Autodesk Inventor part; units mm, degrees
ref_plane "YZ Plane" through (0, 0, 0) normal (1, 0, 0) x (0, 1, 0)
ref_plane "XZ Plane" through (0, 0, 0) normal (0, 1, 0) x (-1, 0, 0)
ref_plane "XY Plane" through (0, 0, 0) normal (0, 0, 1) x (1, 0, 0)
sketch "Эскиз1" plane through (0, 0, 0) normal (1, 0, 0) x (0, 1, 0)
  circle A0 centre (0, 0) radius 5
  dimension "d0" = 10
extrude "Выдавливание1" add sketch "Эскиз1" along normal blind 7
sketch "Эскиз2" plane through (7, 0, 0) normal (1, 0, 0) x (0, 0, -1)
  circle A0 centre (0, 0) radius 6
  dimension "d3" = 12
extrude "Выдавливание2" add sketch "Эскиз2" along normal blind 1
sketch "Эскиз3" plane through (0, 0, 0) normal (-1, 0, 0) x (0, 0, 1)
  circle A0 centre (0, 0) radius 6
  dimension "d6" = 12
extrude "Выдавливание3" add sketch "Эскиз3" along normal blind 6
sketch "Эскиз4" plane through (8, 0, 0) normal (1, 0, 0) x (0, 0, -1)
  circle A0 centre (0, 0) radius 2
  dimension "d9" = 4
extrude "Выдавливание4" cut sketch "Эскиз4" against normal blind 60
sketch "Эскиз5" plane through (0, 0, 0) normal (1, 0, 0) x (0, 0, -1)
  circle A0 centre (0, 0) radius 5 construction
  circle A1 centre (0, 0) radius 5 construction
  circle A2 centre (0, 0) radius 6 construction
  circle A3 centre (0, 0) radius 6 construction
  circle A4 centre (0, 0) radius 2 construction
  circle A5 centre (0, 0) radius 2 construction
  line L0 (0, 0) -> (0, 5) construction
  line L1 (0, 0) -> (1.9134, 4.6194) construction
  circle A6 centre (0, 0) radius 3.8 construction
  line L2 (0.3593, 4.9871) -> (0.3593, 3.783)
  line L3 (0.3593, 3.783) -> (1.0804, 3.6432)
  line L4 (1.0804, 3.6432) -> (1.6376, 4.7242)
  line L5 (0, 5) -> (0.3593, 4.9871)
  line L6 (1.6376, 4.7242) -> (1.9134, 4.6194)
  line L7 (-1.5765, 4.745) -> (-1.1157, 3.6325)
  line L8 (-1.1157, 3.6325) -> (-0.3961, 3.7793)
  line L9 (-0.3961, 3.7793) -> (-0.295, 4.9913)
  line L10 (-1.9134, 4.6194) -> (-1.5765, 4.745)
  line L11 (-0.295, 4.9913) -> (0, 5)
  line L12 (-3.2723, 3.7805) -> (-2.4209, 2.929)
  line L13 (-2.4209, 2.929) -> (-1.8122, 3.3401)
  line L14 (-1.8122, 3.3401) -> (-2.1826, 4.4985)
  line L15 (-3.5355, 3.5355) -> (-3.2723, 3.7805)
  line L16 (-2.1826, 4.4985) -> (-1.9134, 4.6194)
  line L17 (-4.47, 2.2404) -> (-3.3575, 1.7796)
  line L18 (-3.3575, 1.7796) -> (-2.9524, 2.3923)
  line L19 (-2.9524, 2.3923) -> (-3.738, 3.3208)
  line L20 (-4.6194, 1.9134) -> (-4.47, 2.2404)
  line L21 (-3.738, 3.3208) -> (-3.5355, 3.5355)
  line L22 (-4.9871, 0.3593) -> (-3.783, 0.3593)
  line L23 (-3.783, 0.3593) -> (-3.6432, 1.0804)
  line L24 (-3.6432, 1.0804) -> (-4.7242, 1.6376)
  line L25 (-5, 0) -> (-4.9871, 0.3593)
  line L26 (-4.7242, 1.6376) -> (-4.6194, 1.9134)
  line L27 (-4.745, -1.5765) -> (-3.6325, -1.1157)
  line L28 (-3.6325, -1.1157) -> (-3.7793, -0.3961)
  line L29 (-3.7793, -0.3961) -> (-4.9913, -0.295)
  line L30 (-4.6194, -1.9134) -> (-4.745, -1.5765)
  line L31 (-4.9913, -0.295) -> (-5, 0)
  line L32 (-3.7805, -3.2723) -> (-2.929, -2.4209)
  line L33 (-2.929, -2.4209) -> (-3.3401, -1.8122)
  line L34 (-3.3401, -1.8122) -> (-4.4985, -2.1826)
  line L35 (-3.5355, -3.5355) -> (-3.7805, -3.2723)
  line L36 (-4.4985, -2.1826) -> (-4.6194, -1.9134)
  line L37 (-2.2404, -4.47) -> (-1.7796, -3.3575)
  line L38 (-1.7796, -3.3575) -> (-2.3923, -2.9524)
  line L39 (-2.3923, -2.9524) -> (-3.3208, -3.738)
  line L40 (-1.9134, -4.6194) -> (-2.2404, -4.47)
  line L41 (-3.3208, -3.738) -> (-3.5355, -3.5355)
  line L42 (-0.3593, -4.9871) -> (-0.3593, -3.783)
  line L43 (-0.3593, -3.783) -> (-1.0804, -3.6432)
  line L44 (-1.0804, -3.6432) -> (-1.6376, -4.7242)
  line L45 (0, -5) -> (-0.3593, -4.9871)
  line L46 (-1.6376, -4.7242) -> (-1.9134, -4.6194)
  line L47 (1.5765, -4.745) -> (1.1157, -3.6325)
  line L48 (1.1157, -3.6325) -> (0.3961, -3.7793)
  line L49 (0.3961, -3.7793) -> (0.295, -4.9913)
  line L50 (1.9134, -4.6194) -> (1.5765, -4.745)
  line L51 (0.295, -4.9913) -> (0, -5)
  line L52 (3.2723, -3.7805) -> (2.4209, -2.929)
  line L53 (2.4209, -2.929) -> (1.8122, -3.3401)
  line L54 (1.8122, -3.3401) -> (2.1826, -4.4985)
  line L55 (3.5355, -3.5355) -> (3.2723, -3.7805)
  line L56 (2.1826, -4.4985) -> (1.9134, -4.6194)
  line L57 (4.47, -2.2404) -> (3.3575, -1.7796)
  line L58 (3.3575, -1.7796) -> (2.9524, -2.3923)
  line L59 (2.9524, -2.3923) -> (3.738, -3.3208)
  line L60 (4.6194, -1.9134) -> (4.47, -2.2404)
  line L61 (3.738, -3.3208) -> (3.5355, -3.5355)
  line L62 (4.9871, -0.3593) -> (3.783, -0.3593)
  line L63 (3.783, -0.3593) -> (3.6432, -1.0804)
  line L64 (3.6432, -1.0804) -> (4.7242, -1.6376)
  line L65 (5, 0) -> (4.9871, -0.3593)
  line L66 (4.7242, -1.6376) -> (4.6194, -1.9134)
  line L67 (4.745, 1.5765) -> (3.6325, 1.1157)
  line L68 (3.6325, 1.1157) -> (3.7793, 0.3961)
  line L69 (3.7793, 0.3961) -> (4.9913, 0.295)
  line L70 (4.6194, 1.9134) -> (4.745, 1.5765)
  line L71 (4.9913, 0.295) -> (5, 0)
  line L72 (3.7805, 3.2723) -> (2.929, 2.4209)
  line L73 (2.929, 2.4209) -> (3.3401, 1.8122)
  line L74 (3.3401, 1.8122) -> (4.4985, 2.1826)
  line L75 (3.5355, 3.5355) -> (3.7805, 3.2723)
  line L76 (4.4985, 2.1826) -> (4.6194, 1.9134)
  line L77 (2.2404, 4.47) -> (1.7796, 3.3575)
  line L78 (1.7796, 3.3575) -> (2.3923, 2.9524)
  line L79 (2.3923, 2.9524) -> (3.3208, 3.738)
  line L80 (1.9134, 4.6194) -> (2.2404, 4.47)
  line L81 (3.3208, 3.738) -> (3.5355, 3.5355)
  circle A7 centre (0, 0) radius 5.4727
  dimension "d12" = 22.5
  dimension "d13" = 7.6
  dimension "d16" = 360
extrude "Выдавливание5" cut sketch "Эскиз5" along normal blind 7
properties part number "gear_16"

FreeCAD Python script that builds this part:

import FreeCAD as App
import Part
import Sketcher
from FreeCAD import Vector
Q = App.Units.Quantity

doc = App.newDocument("Part")
body = doc.addObject("PartDesign::Body", "Body")

# Sketch on YZ plane
sketch1 = body.newObject("Sketcher::SketchObject", "Sketch")
sketch1.AttachmentSupport = (doc.getObject("YZ_Plane"), [""])
sketch1.MapMode = "FlatFace"
sketch1.addGeometry(Part.Circle(Vector(0, 0, 0), Vector(0, 0, 1), 5), False)
sketch1.addConstraint(Sketcher.Constraint("Coincident", 0, 3, -1, 1))
sketch1.addConstraint(Sketcher.Constraint("Diameter", 0, Q("10 mm")))
pad1 = body.newObject("PartDesign::Pad", "Pad")
pad1.Profile = sketch1
pad1.Length = 7

# Sketch on YZ plane
sketch2 = body.newObject("Sketcher::SketchObject", "Sketch001")
sketch2.AttachmentSupport = (doc.getObject("YZ_Plane"), [""])
sketch2.MapMode = "FlatFace"
sketch2.AttachmentOffset = App.Placement(Vector(0, 0, 7), App.Rotation())
sketch2.addGeometry(Part.Circle(Vector(0, 0, 0), Vector(0, 0, 1), 6), False)
sketch2.addConstraint(Sketcher.Constraint("Coincident", 0, 3, -1, 1))
sketch2.addConstraint(Sketcher.Constraint("Diameter", 0, Q("12 mm")))
pad2 = body.newObject("PartDesign::Pad", "Pad001")
pad2.Profile = sketch2
pad2.Length = 1

# Sketch on YZ plane
sketch3 = body.newObject("Sketcher::SketchObject", "Sketch002")
sketch3.AttachmentSupport = (doc.getObject("YZ_Plane"), [""])
sketch3.MapMode = "FlatFace"
sketch3.addGeometry(Part.Circle(Vector(0, 0, 0), Vector(0, 0, 1), 6), False)
sketch3.addConstraint(Sketcher.Constraint("Coincident", 0, 3, -1, 1))
sketch3.addConstraint(Sketcher.Constraint("Diameter", 0, Q("12 mm")))
pad3 = body.newObject("PartDesign::Pad", "Pad002")
pad3.Profile = sketch3
pad3.Length = 6
pad3.Reversed = True

# Sketch on YZ plane
sketch4 = body.newObject("Sketcher::SketchObject", "Sketch003")
sketch4.AttachmentSupport = (doc.getObject("YZ_Plane"), [""])
sketch4.MapMode = "FlatFace"
sketch4.AttachmentOffset = App.Placement(Vector(0, 0, 8), App.Rotation())
sketch4.addGeometry(Part.Circle(Vector(0, 0, 0), Vector(0, 0, 1), 2), False)
sketch4.addConstraint(Sketcher.Constraint("Coincident", 0, 3, -1, 1))
sketch4.addConstraint(Sketcher.Constraint("Diameter", 0, Q("4 mm")))
pocket1 = body.newObject("PartDesign::Pocket", "Pocket")
pocket1.Profile = sketch4
pocket1.Length = 60

# Sketch on YZ plane
sketch5 = body.newObject("Sketcher::SketchObject", "Sketch004")
sketch5.AttachmentSupport = (doc.getObject("YZ_Plane"), [""])
sketch5.MapMode = "FlatFace"
sketch5.addGeometry(Part.Circle(Vector(0, 0, 0), Vector(0, 0, 1), 5.4727), False)
sketch5.addGeometry(Part.LineSegment(Vector(5, 0, 0), Vector(4.9871, -0.3593, 0)), False)
sketch5.addGeometry(Part.LineSegment(Vector(4.9871, -0.3593, 0), Vector(3.783, -0.3593, 0)), False)
sketch5.addGeometry(Part.LineSegment(Vector(3.783, -0.3593, 0), Vector(3.6432, -1.0804, 0)), False)
sketch5.addGeometry(Part.LineSegment(Vector(3.6432, -1.0804, 0), Vector(4.7242, -1.6376, 0)), False)
sketch5.addGeometry(Part.LineSegment(Vector(4.7242, -1.6376, 0), Vector(4.6194, -1.9134, 0)), False)
sketch5.addGeometry(Part.LineSegment(Vector(4.6194, -1.9134, 0), Vector(4.47, -2.2404, 0)), False)
sketch5.addGeometry(Part.LineSegment(Vector(4.47, -2.2404, 0), Vector(3.3575, -1.7796, 0)), False)
sketch5.addGeometry(Part.LineSegment(Vector(3.3575, -1.7796, 0), Vector(2.9524, -2.3923, 0)), False)
sketch5.addGeometry(Part.LineSegment(Vector(2.9524, -2.3923, 0), Vector(3.738, -3.3208, 0)), False)
sketch5.addGeometry(Part.LineSegment(Vector(3.738, -3.3208, 0), Vector(3.5355, -3.5355, 0)), False)
sketch5.addGeometry(Part.LineSegment(Vector(3.5355, -3.5355, 0), Vector(3.2723, -3.7805, 0)), False)
sketch5.addGeometry(Part.LineSegment(Vector(3.2723, -3.7805, 0), Vector(2.4209, -2.929, 0)), False)
sketch5.addGeometry(Part.LineSegment(Vector(2.4209, -2.929, 0), Vector(1.8122, -3.3401, 0)), False)
sketch5.addGeometry(Part.LineSegment(Vector(1.8122, -3.3401, 0), Vector(2.1826, -4.4985, 0)), False)
sketch5.addGeometry(Part.LineSegment(Vector(2.1826, -4.4985, 0), Vector(1.9134, -4.6194, 0)), False)
sketch5.addGeometry(Part.LineSegment(Vector(1.9134, -4.6194, 0), Vector(1.5765, -4.745, 0)), False)
sketch5.addGeometry(Part.LineSegment(Vector(1.5765, -4.745, 0), Vector(1.1157, -3.6325, 0)), False)
sketch5.addGeometry(Part.LineSegment(Vector(1.1157, -3.6325, 0), Vector(0.3961, -3.7793, 0)), False)
sketch5.addGeometry(Part.LineSegment(Vector(0.3961, -3.7793, 0), Vector(0.295, -4.9913, 0)), False)
sketch5.addGeometry(Part.LineSegment(Vector(0.295, -4.9913, 0), Vector(0, -5, 0)), False)
sketch5.addGeometry(Part.LineSegment(Vector(0, -5, 0), Vector(-0.3593, -4.9871, 0)), False)
sketch5.addGeometry(Part.LineSegment(Vector(-0.3593, -4.9871, 0), Vector(-0.3593, -3.783, 0)), False)
sketch5.addGeometry(Part.LineSegment(Vector(-0.3593, -3.783, 0), Vector(-1.0804, -3.6432, 0)), False)
sketch5.addGeometry(Part.LineSegment(Vector(-1.0804, -3.6432, 0), Vector(-1.6376, -4.7242, 0)), False)
sketch5.addGeometry(Part.LineSegment(Vector(-1.6376, -4.7242, 0), Vector(-1.9134, -4.6194, 0)), False)
sketch5.addGeometry(Part.LineSegment(Vector(-1.9134, -4.6194, 0), Vector(-2.2404, -4.47, 0)), False)
sketch5.addGeometry(Part.LineSegment(Vector(-2.2404, -4.47, 0), Vector(-1.7796, -3.3575, 0)), False)
sketch5.addGeometry(Part.LineSegment(Vector(-1.7796, -3.3575, 0), Vector(-2.3923, -2.9524, 0)), False)
sketch5.addGeometry(Part.LineSegment(Vector(-2.3923, -2.9524, 0), Vector(-3.3208, -3.738, 0)), False)
sketch5.addGeometry(Part.LineSegment(Vector(-3.3208, -3.738, 0), Vector(-3.5355, -3.5355, 0)), False)
sketch5.addGeometry(Part.LineSegment(Vector(-3.5355, -3.5355, 0), Vector(-3.7805, -3.2723, 0)), False)
sketch5.addGeometry(Part.LineSegment(Vector(-3.7805, -3.2723, 0), Vector(-2.929, -2.4209, 0)), False)
sketch5.addGeometry(Part.LineSegment(Vector(-2.929, -2.4209, 0), Vector(-3.3401, -1.8122, 0)), False)
sketch5.addGeometry(Part.LineSegment(Vector(-3.3401, -1.8122, 0), Vector(-4.4985, -2.1826, 0)), False)
sketch5.addGeometry(Part.LineSegment(Vector(-4.4985, -2.1826, 0), Vector(-4.6194, -1.9134, 0)), False)
sketch5.addGeometry(Part.LineSegment(Vector(-4.6194, -1.9134, 0), Vector(-4.745, -1.5765, 0)), False)
sketch5.addGeometry(Part.LineSegment(Vector(-4.745, -1.5765, 0), Vector(-3.6325, -1.1157, 0)), False)
sketch5.addGeometry(Part.LineSegment(Vector(-3.6325, -1.1157, 0), Vector(-3.7793, -0.3961, 0)), False)
sketch5.addGeometry(Part.LineSegment(Vector(-3.7793, -0.3961, 0), Vector(-4.9913, -0.295, 0)), False)
sketch5.addGeometry(Part.LineSegment(Vector(-4.9913, -0.295, 0), Vector(-5, 0, 0)), False)
sketch5.addGeometry(Part.LineSegment(Vector(-5, 0, 0), Vector(-4.9871, 0.3593, 0)), False)
sketch5.addGeometry(Part.LineSegment(Vector(-4.9871, 0.3593, 0), Vector(-3.783, 0.3593, 0)), False)
sketch5.addGeometry(Part.LineSegment(Vector(-3.783, 0.3593, 0), Vector(-3.6432, 1.0804, 0)), False)
sketch5.addGeometry(Part.LineSegment(Vector(-3.6432, 1.0804, 0), Vector(-4.7242, 1.6376, 0)), False)
sketch5.addGeometry(Part.LineSegment(Vector(-4.7242, 1.6376, 0), Vector(-4.6194, 1.9134, 0)), False)
sketch5.addGeometry(Part.LineSegment(Vector(-4.6194, 1.9134, 0), Vector(-4.47, 2.2404, 0)), False)
sketch5.addGeometry(Part.LineSegment(Vector(-4.47, 2.2404, 0), Vector(-3.3575, 1.7796, 0)), False)
sketch5.addGeometry(Part.LineSegment(Vector(-3.3575, 1.7796, 0), Vector(-2.9524, 2.3923, 0)), False)
sketch5.addGeometry(Part.LineSegment(Vector(-2.9524, 2.3923, 0), Vector(-3.738, 3.3208, 0)), False)
sketch5.addGeometry(Part.LineSegment(Vector(-3.738, 3.3208, 0), Vector(-3.5355, 3.5355, 0)), False)
sketch5.addGeometry(Part.LineSegment(Vector(-3.5355, 3.5355, 0), Vector(-3.2723, 3.7805, 0)), False)
sketch5.addGeometry(Part.LineSegment(Vector(-3.2723, 3.7805, 0), Vector(-2.4209, 2.929, 0)), False)
sketch5.addGeometry(Part.LineSegment(Vector(-2.4209, 2.929, 0), Vector(-1.8122, 3.3401, 0)), False)
sketch5.addGeometry(Part.LineSegment(Vector(-1.8122, 3.3401, 0), Vector(-2.1826, 4.4985, 0)), False)
sketch5.addGeometry(Part.LineSegment(Vector(-2.1826, 4.4985, 0), Vector(-1.9134, 4.6194, 0)), False)
sketch5.addGeometry(Part.LineSegment(Vector(-1.9134, 4.6194, 0), Vector(-1.5765, 4.745, 0)), False)
sketch5.addGeometry(Part.LineSegment(Vector(-1.5765, 4.745, 0), Vector(-1.1157, 3.6325, 0)), False)
sketch5.addGeometry(Part.LineSegment(Vector(-1.1157, 3.6325, 0), Vector(-0.3961, 3.7793, 0)), False)
sketch5.addGeometry(Part.LineSegment(Vector(-0.3961, 3.7793, 0), Vector(-0.295, 4.9913, 0)), False)
sketch5.addGeometry(Part.LineSegment(Vector(-0.295, 4.9913, 0), Vector(0, 5, 0)), False)
sketch5.addGeometry(Part.LineSegment(Vector(0, 5, 0), Vector(0.3593, 4.9871, 0)), False)
sketch5.addGeometry(Part.LineSegment(Vector(0.3593, 4.9871, 0), Vector(0.3593, 3.783, 0)), False)
sketch5.addGeometry(Part.LineSegment(Vector(0.3593, 3.783, 0), Vector(1.0804, 3.6432, 0)), False)
sketch5.addGeometry(Part.LineSegment(Vector(1.0804, 3.6432, 0), Vector(1.6376, 4.7242, 0)), False)
sketch5.addGeometry(Part.LineSegment(Vector(1.6376, 4.7242, 0), Vector(1.9134, 4.6194, 0)), False)
sketch5.addGeometry(Part.LineSegment(Vector(1.9134, 4.6194, 0), Vector(2.2404, 4.47, 0)), False)
sketch5.addGeometry(Part.LineSegment(Vector(2.2404, 4.47, 0), Vector(1.7796, 3.3575, 0)), False)
sketch5.addGeometry(Part.LineSegment(Vector(1.7796, 3.3575, 0), Vector(2.3923, 2.9524, 0)), False)
sketch5.addGeometry(Part.LineSegment(Vector(2.3923, 2.9524, 0), Vector(3.3208, 3.738, 0)), False)
sketch5.addGeometry(Part.LineSegment(Vector(3.3208, 3.738, 0), Vector(3.5355, 3.5355, 0)), False)
sketch5.addGeometry(Part.LineSegment(Vector(3.5355, 3.5355, 0), Vector(3.7805, 3.2723, 0)), False)
sketch5.addGeometry(Part.LineSegment(Vector(3.7805, 3.2723, 0), Vector(2.929, 2.4209, 0)), False)
sketch5.addGeometry(Part.LineSegment(Vector(2.929, 2.4209, 0), Vector(3.3401, 1.8122, 0)), False)
sketch5.addGeometry(Part.LineSegment(Vector(3.3401, 1.8122, 0), Vector(4.4985, 2.1826, 0)), False)
sketch5.addGeometry(Part.LineSegment(Vector(4.4985, 2.1826, 0), Vector(4.6194, 1.9134, 0)), False)
sketch5.addGeometry(Part.LineSegment(Vector(4.6194, 1.9134, 0), Vector(4.745, 1.5765, 0)), False)
sketch5.addGeometry(Part.LineSegment(Vector(4.745, 1.5765, 0), Vector(3.6325, 1.1157, 0)), False)
sketch5.addGeometry(Part.LineSegment(Vector(3.6325, 1.1157, 0), Vector(3.7793, 0.3961, 0)), False)
sketch5.addGeometry(Part.LineSegment(Vector(3.7793, 0.3961, 0), Vector(4.9913, 0.295, 0)), False)
sketch5.addGeometry(Part.LineSegment(Vector(4.9913, 0.295, 0), Vector(5, 0, 0)), False)
sketch5.addConstraint(Sketcher.Constraint("Coincident", 1, 2, 2, 1))
sketch5.addConstraint(Sketcher.Constraint("Coincident", 2, 2, 3, 1))
sketch5.addConstraint(Sketcher.Constraint("Coincident", 3, 2, 4, 1))
sketch5.addConstraint(Sketcher.Constraint("Coincident", 4, 2, 5, 1))
sketch5.addConstraint(Sketcher.Constraint("Coincident", 5, 2, 6, 1))
sketch5.addConstraint(Sketcher.Constraint("Coincident", 6, 2, 7, 1))
sketch5.addConstraint(Sketcher.Constraint("Coincident", 7, 2, 8, 1))
sketch5.addConstraint(Sketcher.Constraint("Coincident", 8, 2, 9, 1))
sketch5.addConstraint(Sketcher.Constraint("Coincident", 9, 2, 10, 1))
sketch5.addConstraint(Sketcher.Constraint("Coincident", 10, 2, 11, 1))
sketch5.addConstraint(Sketcher.Constraint("Coincident", 11, 2, 12, 1))
sketch5.addConstraint(Sketcher.Constraint("Coincident", 12, 2, 13, 1))
sketch5.addConstraint(Sketcher.Constraint("Coincident", 13, 2, 14, 1))
sketch5.addConstraint(Sketcher.Constraint("Coincident", 14, 2, 15, 1))
sketch5.addConstraint(Sketcher.Constraint("Coincident", 15, 2, 16, 1))
sketch5.addConstraint(Sketcher.Constraint("Coincident", 16, 2, 17, 1))
sketch5.addConstraint(Sketcher.Constraint("Coincident", 17, 2, 18, 1))
sketch5.addConstraint(Sketcher.Constraint("Coincident", 18, 2, 19, 1))
sketch5.addConstraint(Sketcher.Constraint("Coincident", 19, 2, 20, 1))
sketch5.addConstraint(Sketcher.Constraint("Coincident", 20, 2, 21, 1))
sketch5.addConstraint(Sketcher.Constraint("Coincident", 21, 2, 22, 1))
sketch5.addConstraint(Sketcher.Constraint("Coincident", 22, 2, 23, 1))
sketch5.addConstraint(Sketcher.Constraint("Coincident", 23, 2, 24, 1))
sketch5.addConstraint(Sketcher.Constraint("Coincident", 24, 2, 25, 1))
sketch5.addConstraint(Sketcher.Constraint("Coincident", 25, 2, 26, 1))
sketch5.addConstraint(Sketcher.Constraint("Coincident", 26, 2, 27, 1))
sketch5.addConstraint(Sketcher.Constraint("Coincident", 27, 2, 28, 1))
sketch5.addConstraint(Sketcher.Constraint("Coincident", 28, 2, 29, 1))
sketch5.addConstraint(Sketcher.Constraint("Coincident", 29, 2, 30, 1))
sketch5.addConstraint(Sketcher.Constraint("Coincident", 30, 2, 31, 1))
sketch5.addConstraint(Sketcher.Constraint("Coincident", 31, 2, 32, 1))
sketch5.addConstraint(Sketcher.Constraint("Coincident", 32, 2, 33, 1))
sketch5.addConstraint(Sketcher.Constraint("Coincident", 33, 2, 34, 1))
sketch5.addConstraint(Sketcher.Constraint("Coincident", 34, 2, 35, 1))
sketch5.addConstraint(Sketcher.Constraint("Coincident", 35, 2, 36, 1))
sketch5.addConstraint(Sketcher.Constraint("Coincident", 36, 2, 37, 1))
sketch5.addConstraint(Sketcher.Constraint("Coincident", 37, 2, 38, 1))
sketch5.addConstraint(Sketcher.Constraint("Coincident", 38, 2, 39, 1))
sketch5.addConstraint(Sketcher.Constraint("Coincident", 39, 2, 40, 1))
sketch5.addConstraint(Sketcher.Constraint("Coincident", 40, 2, 41, 1))
sketch5.addConstraint(Sketcher.Constraint("Coincident", 41, 2, 42, 1))
sketch5.addConstraint(Sketcher.Constraint("Coincident", 42, 2, 43, 1))
sketch5.addConstraint(Sketcher.Constraint("Coincident", 43, 2, 44, 1))
sketch5.addConstraint(Sketcher.Constraint("Coincident", 44, 2, 45, 1))
sketch5.addConstraint(Sketcher.Constraint("Coincident", 45, 2, 46, 1))
sketch5.addConstraint(Sketcher.Constraint("Coincident", 46, 2, 47, 1))
sketch5.addConstraint(Sketcher.Constraint("Coincident", 47, 2, 48, 1))
sketch5.addConstraint(Sketcher.Constraint("Coincident", 48, 2, 49, 1))
sketch5.addConstraint(Sketcher.Constraint("Coincident", 49, 2, 50, 1))
sketch5.addConstraint(Sketcher.Constraint("Coincident", 50, 2, 51, 1))
sketch5.addConstraint(Sketcher.Constraint("Coincident", 51, 2, 52, 1))
sketch5.addConstraint(Sketcher.Constraint("Coincident", 52, 2, 53, 1))
sketch5.addConstraint(Sketcher.Constraint("Coincident", 53, 2, 54, 1))
sketch5.addConstraint(Sketcher.Constraint("Coincident", 54, 2, 55, 1))
sketch5.addConstraint(Sketcher.Constraint("Coincident", 55, 2, 56, 1))
sketch5.addConstraint(Sketcher.Constraint("Coincident", 56, 2, 57, 1))
sketch5.addConstraint(Sketcher.Constraint("Coincident", 57, 2, 58, 1))
sketch5.addConstraint(Sketcher.Constraint("Coincident", 58, 2, 59, 1))
sketch5.addConstraint(Sketcher.Constraint("Coincident", 59, 2, 60, 1))
sketch5.addConstraint(Sketcher.Constraint("Coincident", 60, 2, 61, 1))
sketch5.addConstraint(Sketcher.Constraint("Coincident", 61, 2, 62, 1))
sketch5.addConstraint(Sketcher.Constraint("Coincident", 62, 2, 63, 1))
sketch5.addConstraint(Sketcher.Constraint("Coincident", 63, 2, 64, 1))
sketch5.addConstraint(Sketcher.Constraint("Coincident", 64, 2, 65, 1))
sketch5.addConstraint(Sketcher.Constraint("Coincident", 65, 2, 66, 1))
sketch5.addConstraint(Sketcher.Constraint("Coincident", 66, 2, 67, 1))
sketch5.addConstraint(Sketcher.Constraint("Coincident", 67, 2, 68, 1))
sketch5.addConstraint(Sketcher.Constraint("Coincident", 68, 2, 69, 1))
sketch5.addConstraint(Sketcher.Constraint("Coincident", 69, 2, 70, 1))
sketch5.addConstraint(Sketcher.Constraint("Coincident", 70, 2, 71, 1))
sketch5.addConstraint(Sketcher.Constraint("Coincident", 71, 2, 72, 1))
sketch5.addConstraint(Sketcher.Constraint("Coincident", 72, 2, 73, 1))
sketch5.addConstraint(Sketcher.Constraint("Coincident", 73, 2, 74, 1))
sketch5.addConstraint(Sketcher.Constraint("Coincident", 74, 2, 75, 1))
sketch5.addConstraint(Sketcher.Constraint("Coincident", 75, 2, 76, 1))
sketch5.addConstraint(Sketcher.Constraint("Coincident", 76, 2, 77, 1))
sketch5.addConstraint(Sketcher.Constraint("Coincident", 77, 2, 78, 1))
sketch5.addConstraint(Sketcher.Constraint("Coincident", 78, 2, 79, 1))
sketch5.addConstraint(Sketcher.Constraint("Coincident", 79, 2, 80, 1))
sketch5.addConstraint(Sketcher.Constraint("Coincident", 80, 2, 1, 1))
sketch5.addConstraint(Sketcher.Constraint("Horizontal", 2))
sketch5.addConstraint(Sketcher.Constraint("Vertical", 22))
sketch5.addConstraint(Sketcher.Constraint("Horizontal", 42))
sketch5.addConstraint(Sketcher.Constraint("Vertical", 62))
sketch5.addConstraint(Sketcher.Constraint("Coincident", 0, 3, -1, 1))
sketch5.addConstraint(Sketcher.Constraint("Symmetric", 1, 2, 41, 2, -1, 1))
sketch5.addConstraint(Sketcher.Constraint("Symmetric", 3, 2, 43, 2, -1, 1))
sketch5.addConstraint(Sketcher.Constraint("Symmetric", 4, 2, 44, 2, -1, 1))
sketch5.addConstraint(Sketcher.Constraint("Symmetric", 5, 2, 45, 2, -1, 1))
sketch5.addConstraint(Sketcher.Constraint("Symmetric", 6, 2, 46, 2, -1, 1))
sketch5.addConstraint(Sketcher.Constraint("Symmetric", 7, 2, 47, 2, -1, 1))
sketch5.addConstraint(Sketcher.Constraint("Symmetric", 8, 2, 48, 2, -1, 1))
sketch5.addConstraint(Sketcher.Constraint("Symmetric", 9, 2, 49, 2, -1, 1))
sketch5.addConstraint(Sketcher.Constraint("Symmetric", 10, 2, 50, 2, -1, 1))
sketch5.addConstraint(Sketcher.Constraint("Symmetric", 11, 2, 51, 2, -1, 1))
sketch5.addConstraint(Sketcher.Constraint("Symmetric", 12, 2, 52, 2, -1, 1))
sketch5.addConstraint(Sketcher.Constraint("Symmetric", 13, 2, 53, 2, -1, 1))
sketch5.addConstraint(Sketcher.Constraint("Symmetric", 14, 2, 54, 2, -1, 1))
sketch5.addConstraint(Sketcher.Constraint("Symmetric", 15, 2, 55, 2, -1, 1))
sketch5.addConstraint(Sketcher.Constraint("Symmetric", 16, 2, 56, 2, -1, 1))
sketch5.addConstraint(Sketcher.Constraint("Symmetric", 17, 2, 57, 2, -1, 1))
sketch5.addConstraint(Sketcher.Constraint("Symmetric", 18, 2, 58, 2, -1, 1))
sketch5.addConstraint(Sketcher.Constraint("Symmetric", 19, 2, 59, 2, -1, 1))
sketch5.addConstraint(Sketcher.Constraint("Symmetric", 20, 2, 60, 2, -1, 1))
sketch5.addConstraint(Sketcher.Constraint("Symmetric", 21, 2, 61, 2, -1, 1))
sketch5.addConstraint(Sketcher.Constraint("Symmetric", 23, 2, 63, 2, -1, 1))
sketch5.addConstraint(Sketcher.Constraint("Symmetric", 24, 2, 64, 2, -1, 1))
sketch5.addConstraint(Sketcher.Constraint("Symmetric", 25, 2, 65, 2, -1, 1))
sketch5.addConstraint(Sketcher.Constraint("Symmetric", 26, 2, 66, 2, -1, 1))
sketch5.addConstraint(Sketcher.Constraint("Symmetric", 27, 2, 67, 2, -1, 1))
sketch5.addConstraint(Sketcher.Constraint("Symmetric", 28, 2, 68, 2, -1, 1))
sketch5.addConstraint(Sketcher.Constraint("Symmetric", 29, 2, 69, 2, -1, 1))
sketch5.addConstraint(Sketcher.Constraint("Symmetric", 30, 2, 70, 2, -1, 1))
sketch5.addConstraint(Sketcher.Constraint("Symmetric", 31, 2, 71, 2, -1, 1))
sketch5.addConstraint(Sketcher.Constraint("Symmetric", 32, 2, 72, 2, -1, 1))
sketch5.addConstraint(Sketcher.Constraint("Symmetric", 33, 2, 73, 2, -1, 1))
sketch5.addConstraint(Sketcher.Constraint("Symmetric", 34, 2, 74, 2, -1, 1))
sketch5.addConstraint(Sketcher.Constraint("Symmetric", 35, 2, 75, 2, -1, 1))
sketch5.addConstraint(Sketcher.Constraint("Symmetric", 36, 2, 76, 2, -1, 1))
sketch5.addConstraint(Sketcher.Constraint("Symmetric", 37, 2, 77, 2, -1, 1))
sketch5.addConstraint(Sketcher.Constraint("Symmetric", 38, 2, 78, 2, -1, 1))
sketch5.addConstraint(Sketcher.Constraint("Symmetric", 39, 2, 79, 2, -1, 1))
sketch5.addConstraint(Sketcher.Constraint("Symmetric", 40, 2, 80, 2, -1, 1))
sketch5.addConstraint(Sketcher.Constraint("Symmetric", 15, 2, 25, 2, -2))
sketch5.addConstraint(Sketcher.Constraint("Symmetric", 10, 2, 30, 2, -2))
sketch5.addConstraint(Sketcher.Constraint("Symmetric", 5, 2, 35, 2, -2))
sketch5.addConstraint(Sketcher.Constraint("PointOnObject", 20, 2, -2))
sketch5.addConstraint(Sketcher.Constraint("PointOnObject", 40, 2, -1))
sketch5.addConstraint(Sketcher.Constraint("Perpendicular", 1, 21))
sketch5.addConstraint(Sketcher.Constraint("Perpendicular", 3, 23))
sketch5.addConstraint(Sketcher.Constraint("Perpendicular", 4, 24))
sketch5.addConstraint(Sketcher.Constraint("Perpendicular", 5, 25))
sketch5.addConstraint(Sketcher.Constraint("Perpendicular", 6, 26))
sketch5.addConstraint(Sketcher.Constraint("Perpendicular", 7, 27))
sketch5.addConstraint(Sketcher.Constraint("Perpendicular", 8, 28))
sketch5.addConstraint(Sketcher.Constraint("Perpendicular", 9, 29))
sketch5.addConstraint(Sketcher.Constraint("Perpendicular", 10, 30))
sketch5.addConstraint(Sketcher.Constraint("Perpendicular", 11, 31))
sketch5.addConstraint(Sketcher.Constraint("Perpendicular", 12, 32))
sketch5.addConstraint(Sketcher.Constraint("Perpendicular", 13, 33))
sketch5.addConstraint(Sketcher.Constraint("Perpendicular", 14, 34))
sketch5.addConstraint(Sketcher.Constraint("Perpendicular", 15, 35))
sketch5.addConstraint(Sketcher.Constraint("Perpendicular", 16, 36))
sketch5.addConstraint(Sketcher.Constraint("Perpendicular", 17, 37))
sketch5.addConstraint(Sketcher.Constraint("Perpendicular", 18, 38))
sketch5.addConstraint(Sketcher.Constraint("Perpendicular", 19, 39))
sketch5.addConstraint(Sketcher.Constraint("Perpendicular", 20, 40))
sketch5.addConstraint(Sketcher.Constraint("Perpendicular", 23, 43))
sketch5.addConstraint(Sketcher.Constraint("Perpendicular", 43, 63))
sketch5.addConstraint(Sketcher.Constraint("Equal", 42, 22))
sketch5.addConstraint(Sketcher.Constraint("Equal", 1, 6))
sketch5.addConstraint(Sketcher.Constraint("Equal", 3, 8))
sketch5.addConstraint(Sketcher.Constraint("Equal", 4, 9))
sketch5.addConstraint(Sketcher.Constraint("Equal", 5, 10))
sketch5.addConstraint(Sketcher.Constraint("Equal", 6, 11))
sketch5.addConstraint(Sketcher.Constraint("Equal", 7, 12))
sketch5.addConstraint(Sketcher.Constraint("Equal", 8, 13))
sketch5.addConstraint(Sketcher.Constraint("Equal", 9, 14))
sketch5.addConstraint(Sketcher.Constraint("Equal", 10, 15))
sketch5.addConstraint(Sketcher.Constraint("Equal", 11, 16))
sketch5.addConstraint(Sketcher.Constraint("Equal", 12, 17))
sketch5.addConstraint(Sketcher.Constraint("Equal", 13, 18))
sketch5.addConstraint(Sketcher.Constraint("Equal", 14, 19))
sketch5.addConstraint(Sketcher.Constraint("Equal", 15, 20))
sketch5.addConstraint(Sketcher.Constraint("Equal", 16, 21))
sketch5.addConstraint(Sketcher.Constraint("Equal", 18, 23))
sketch5.addConstraint(Sketcher.Constraint("Equal", 19, 24))
sketch5.addConstraint(Sketcher.Constraint("Equal", 20, 25))
sketch5.addConstraint(Sketcher.Constraint("Equal", 21, 26))
sketch5.addConstraint(Sketcher.Constraint("Equal", 17, 27))
sketch5.addConstraint(Sketcher.Constraint("Equal", 23, 28))
sketch5.addConstraint(Sketcher.Constraint("Equal", 24, 29))
sketch5.addConstraint(Sketcher.Constraint("Equal", 25, 30))
sketch5.addConstraint(Sketcher.Constraint("Equal", 26, 31))
sketch5.addConstraint(Sketcher.Constraint("Equal", 27, 32))
sketch5.addConstraint(Sketcher.Constraint("Equal", 28, 33))
sketch5.addConstraint(Sketcher.Constraint("Equal", 31, 36))
sketch5.addConstraint(Sketcher.Constraint("Equal", 32, 37))
sketch5.addConstraint(Sketcher.Constraint("Equal", 33, 38))
sketch5.addConstraint(Sketcher.Constraint("Angle", 37, Q("22.4994 deg")))
sketch5.addConstraint(Sketcher.Constraint("Angle", 47, Q("-22.4994 deg")))
sketch5.addConstraint(Sketcher.Constraint("DistanceY", 20, 2, -1, 1, Q("5 mm")))
sketch5.addConstraint(Sketcher.Constraint("Diameter", 0, Q("10.9454 mm")))
sketch5.addConstraint(Sketcher.Constraint("Angle", 11, Q("-137.051 deg")))
sketch5.addConstraint(Sketcher.Constraint("Angle", 18, Q("-168.4697 deg")))
sketch5.addConstraint(Sketcher.Constraint("Angle", 20, Q("-178.3107 deg")))
sketch5.addConstraint(Sketcher.Constraint("DistanceX", 2, 2, 2, 1, Q("1.204 mm")))
sketch5.addConstraint(Sketcher.Constraint("DistanceX", -1, 1, 6, 2, Q("4.47 mm")))
sketch5.addConstraint(Sketcher.Constraint("DistanceY", 13, 2, -1, 1, Q("3.34 mm")))
sketch5.addConstraint(Sketcher.Constraint("Distance", 5, Q("0.295 mm")))
sketch5.addConstraint(Sketcher.Constraint("DistanceX", -1, 1, 1, 2, Q("4.987 mm")))
sketch5.addConstraint(Sketcher.Constraint("DistanceX", -1, 1, 9, 2, Q("3.738 mm")))
sketch5.addConstraint(Sketcher.Constraint("DistanceX", -1, 1, 12, 2, Q("2.421 mm")))
sketch5.addConstraint(Sketcher.Constraint("DistanceY", 12, 2, -1, 1, Q("2.929 mm")))
sketch5.addConstraint(Sketcher.Constraint("DistanceY", 16, 2, -1, 1, Q("4.745 mm")))
sketch5.addConstraint(Sketcher.Constraint("DistanceX", -1, 1, 18, 2, Q("0.396 mm")))
sketch5.addConstraint(Sketcher.Constraint("Distance", 1, Q("0.3595 mm")))
sketch5.addConstraint(Sketcher.Constraint("Distance", 3, Q("0.7345 mm")))
sketch5.addConstraint(Sketcher.Constraint("Distance", 4, Q("1.2162 mm")))
sketch5.addConstraint(Sketcher.Constraint("DistanceX", -1, 1, 3, 2, Q("3.6432 mm")))
sketch5.addConstraint(Sketcher.Constraint("DistanceX", -1, 1, 5, 2, Q("4.6194 mm")))
pocket2 = body.newObject("PartDesign::Pocket", "Pocket001")
pocket2.Profile = sketch5
pocket2.Length = 7
pocket2.Reversed = True

doc.recompute()
